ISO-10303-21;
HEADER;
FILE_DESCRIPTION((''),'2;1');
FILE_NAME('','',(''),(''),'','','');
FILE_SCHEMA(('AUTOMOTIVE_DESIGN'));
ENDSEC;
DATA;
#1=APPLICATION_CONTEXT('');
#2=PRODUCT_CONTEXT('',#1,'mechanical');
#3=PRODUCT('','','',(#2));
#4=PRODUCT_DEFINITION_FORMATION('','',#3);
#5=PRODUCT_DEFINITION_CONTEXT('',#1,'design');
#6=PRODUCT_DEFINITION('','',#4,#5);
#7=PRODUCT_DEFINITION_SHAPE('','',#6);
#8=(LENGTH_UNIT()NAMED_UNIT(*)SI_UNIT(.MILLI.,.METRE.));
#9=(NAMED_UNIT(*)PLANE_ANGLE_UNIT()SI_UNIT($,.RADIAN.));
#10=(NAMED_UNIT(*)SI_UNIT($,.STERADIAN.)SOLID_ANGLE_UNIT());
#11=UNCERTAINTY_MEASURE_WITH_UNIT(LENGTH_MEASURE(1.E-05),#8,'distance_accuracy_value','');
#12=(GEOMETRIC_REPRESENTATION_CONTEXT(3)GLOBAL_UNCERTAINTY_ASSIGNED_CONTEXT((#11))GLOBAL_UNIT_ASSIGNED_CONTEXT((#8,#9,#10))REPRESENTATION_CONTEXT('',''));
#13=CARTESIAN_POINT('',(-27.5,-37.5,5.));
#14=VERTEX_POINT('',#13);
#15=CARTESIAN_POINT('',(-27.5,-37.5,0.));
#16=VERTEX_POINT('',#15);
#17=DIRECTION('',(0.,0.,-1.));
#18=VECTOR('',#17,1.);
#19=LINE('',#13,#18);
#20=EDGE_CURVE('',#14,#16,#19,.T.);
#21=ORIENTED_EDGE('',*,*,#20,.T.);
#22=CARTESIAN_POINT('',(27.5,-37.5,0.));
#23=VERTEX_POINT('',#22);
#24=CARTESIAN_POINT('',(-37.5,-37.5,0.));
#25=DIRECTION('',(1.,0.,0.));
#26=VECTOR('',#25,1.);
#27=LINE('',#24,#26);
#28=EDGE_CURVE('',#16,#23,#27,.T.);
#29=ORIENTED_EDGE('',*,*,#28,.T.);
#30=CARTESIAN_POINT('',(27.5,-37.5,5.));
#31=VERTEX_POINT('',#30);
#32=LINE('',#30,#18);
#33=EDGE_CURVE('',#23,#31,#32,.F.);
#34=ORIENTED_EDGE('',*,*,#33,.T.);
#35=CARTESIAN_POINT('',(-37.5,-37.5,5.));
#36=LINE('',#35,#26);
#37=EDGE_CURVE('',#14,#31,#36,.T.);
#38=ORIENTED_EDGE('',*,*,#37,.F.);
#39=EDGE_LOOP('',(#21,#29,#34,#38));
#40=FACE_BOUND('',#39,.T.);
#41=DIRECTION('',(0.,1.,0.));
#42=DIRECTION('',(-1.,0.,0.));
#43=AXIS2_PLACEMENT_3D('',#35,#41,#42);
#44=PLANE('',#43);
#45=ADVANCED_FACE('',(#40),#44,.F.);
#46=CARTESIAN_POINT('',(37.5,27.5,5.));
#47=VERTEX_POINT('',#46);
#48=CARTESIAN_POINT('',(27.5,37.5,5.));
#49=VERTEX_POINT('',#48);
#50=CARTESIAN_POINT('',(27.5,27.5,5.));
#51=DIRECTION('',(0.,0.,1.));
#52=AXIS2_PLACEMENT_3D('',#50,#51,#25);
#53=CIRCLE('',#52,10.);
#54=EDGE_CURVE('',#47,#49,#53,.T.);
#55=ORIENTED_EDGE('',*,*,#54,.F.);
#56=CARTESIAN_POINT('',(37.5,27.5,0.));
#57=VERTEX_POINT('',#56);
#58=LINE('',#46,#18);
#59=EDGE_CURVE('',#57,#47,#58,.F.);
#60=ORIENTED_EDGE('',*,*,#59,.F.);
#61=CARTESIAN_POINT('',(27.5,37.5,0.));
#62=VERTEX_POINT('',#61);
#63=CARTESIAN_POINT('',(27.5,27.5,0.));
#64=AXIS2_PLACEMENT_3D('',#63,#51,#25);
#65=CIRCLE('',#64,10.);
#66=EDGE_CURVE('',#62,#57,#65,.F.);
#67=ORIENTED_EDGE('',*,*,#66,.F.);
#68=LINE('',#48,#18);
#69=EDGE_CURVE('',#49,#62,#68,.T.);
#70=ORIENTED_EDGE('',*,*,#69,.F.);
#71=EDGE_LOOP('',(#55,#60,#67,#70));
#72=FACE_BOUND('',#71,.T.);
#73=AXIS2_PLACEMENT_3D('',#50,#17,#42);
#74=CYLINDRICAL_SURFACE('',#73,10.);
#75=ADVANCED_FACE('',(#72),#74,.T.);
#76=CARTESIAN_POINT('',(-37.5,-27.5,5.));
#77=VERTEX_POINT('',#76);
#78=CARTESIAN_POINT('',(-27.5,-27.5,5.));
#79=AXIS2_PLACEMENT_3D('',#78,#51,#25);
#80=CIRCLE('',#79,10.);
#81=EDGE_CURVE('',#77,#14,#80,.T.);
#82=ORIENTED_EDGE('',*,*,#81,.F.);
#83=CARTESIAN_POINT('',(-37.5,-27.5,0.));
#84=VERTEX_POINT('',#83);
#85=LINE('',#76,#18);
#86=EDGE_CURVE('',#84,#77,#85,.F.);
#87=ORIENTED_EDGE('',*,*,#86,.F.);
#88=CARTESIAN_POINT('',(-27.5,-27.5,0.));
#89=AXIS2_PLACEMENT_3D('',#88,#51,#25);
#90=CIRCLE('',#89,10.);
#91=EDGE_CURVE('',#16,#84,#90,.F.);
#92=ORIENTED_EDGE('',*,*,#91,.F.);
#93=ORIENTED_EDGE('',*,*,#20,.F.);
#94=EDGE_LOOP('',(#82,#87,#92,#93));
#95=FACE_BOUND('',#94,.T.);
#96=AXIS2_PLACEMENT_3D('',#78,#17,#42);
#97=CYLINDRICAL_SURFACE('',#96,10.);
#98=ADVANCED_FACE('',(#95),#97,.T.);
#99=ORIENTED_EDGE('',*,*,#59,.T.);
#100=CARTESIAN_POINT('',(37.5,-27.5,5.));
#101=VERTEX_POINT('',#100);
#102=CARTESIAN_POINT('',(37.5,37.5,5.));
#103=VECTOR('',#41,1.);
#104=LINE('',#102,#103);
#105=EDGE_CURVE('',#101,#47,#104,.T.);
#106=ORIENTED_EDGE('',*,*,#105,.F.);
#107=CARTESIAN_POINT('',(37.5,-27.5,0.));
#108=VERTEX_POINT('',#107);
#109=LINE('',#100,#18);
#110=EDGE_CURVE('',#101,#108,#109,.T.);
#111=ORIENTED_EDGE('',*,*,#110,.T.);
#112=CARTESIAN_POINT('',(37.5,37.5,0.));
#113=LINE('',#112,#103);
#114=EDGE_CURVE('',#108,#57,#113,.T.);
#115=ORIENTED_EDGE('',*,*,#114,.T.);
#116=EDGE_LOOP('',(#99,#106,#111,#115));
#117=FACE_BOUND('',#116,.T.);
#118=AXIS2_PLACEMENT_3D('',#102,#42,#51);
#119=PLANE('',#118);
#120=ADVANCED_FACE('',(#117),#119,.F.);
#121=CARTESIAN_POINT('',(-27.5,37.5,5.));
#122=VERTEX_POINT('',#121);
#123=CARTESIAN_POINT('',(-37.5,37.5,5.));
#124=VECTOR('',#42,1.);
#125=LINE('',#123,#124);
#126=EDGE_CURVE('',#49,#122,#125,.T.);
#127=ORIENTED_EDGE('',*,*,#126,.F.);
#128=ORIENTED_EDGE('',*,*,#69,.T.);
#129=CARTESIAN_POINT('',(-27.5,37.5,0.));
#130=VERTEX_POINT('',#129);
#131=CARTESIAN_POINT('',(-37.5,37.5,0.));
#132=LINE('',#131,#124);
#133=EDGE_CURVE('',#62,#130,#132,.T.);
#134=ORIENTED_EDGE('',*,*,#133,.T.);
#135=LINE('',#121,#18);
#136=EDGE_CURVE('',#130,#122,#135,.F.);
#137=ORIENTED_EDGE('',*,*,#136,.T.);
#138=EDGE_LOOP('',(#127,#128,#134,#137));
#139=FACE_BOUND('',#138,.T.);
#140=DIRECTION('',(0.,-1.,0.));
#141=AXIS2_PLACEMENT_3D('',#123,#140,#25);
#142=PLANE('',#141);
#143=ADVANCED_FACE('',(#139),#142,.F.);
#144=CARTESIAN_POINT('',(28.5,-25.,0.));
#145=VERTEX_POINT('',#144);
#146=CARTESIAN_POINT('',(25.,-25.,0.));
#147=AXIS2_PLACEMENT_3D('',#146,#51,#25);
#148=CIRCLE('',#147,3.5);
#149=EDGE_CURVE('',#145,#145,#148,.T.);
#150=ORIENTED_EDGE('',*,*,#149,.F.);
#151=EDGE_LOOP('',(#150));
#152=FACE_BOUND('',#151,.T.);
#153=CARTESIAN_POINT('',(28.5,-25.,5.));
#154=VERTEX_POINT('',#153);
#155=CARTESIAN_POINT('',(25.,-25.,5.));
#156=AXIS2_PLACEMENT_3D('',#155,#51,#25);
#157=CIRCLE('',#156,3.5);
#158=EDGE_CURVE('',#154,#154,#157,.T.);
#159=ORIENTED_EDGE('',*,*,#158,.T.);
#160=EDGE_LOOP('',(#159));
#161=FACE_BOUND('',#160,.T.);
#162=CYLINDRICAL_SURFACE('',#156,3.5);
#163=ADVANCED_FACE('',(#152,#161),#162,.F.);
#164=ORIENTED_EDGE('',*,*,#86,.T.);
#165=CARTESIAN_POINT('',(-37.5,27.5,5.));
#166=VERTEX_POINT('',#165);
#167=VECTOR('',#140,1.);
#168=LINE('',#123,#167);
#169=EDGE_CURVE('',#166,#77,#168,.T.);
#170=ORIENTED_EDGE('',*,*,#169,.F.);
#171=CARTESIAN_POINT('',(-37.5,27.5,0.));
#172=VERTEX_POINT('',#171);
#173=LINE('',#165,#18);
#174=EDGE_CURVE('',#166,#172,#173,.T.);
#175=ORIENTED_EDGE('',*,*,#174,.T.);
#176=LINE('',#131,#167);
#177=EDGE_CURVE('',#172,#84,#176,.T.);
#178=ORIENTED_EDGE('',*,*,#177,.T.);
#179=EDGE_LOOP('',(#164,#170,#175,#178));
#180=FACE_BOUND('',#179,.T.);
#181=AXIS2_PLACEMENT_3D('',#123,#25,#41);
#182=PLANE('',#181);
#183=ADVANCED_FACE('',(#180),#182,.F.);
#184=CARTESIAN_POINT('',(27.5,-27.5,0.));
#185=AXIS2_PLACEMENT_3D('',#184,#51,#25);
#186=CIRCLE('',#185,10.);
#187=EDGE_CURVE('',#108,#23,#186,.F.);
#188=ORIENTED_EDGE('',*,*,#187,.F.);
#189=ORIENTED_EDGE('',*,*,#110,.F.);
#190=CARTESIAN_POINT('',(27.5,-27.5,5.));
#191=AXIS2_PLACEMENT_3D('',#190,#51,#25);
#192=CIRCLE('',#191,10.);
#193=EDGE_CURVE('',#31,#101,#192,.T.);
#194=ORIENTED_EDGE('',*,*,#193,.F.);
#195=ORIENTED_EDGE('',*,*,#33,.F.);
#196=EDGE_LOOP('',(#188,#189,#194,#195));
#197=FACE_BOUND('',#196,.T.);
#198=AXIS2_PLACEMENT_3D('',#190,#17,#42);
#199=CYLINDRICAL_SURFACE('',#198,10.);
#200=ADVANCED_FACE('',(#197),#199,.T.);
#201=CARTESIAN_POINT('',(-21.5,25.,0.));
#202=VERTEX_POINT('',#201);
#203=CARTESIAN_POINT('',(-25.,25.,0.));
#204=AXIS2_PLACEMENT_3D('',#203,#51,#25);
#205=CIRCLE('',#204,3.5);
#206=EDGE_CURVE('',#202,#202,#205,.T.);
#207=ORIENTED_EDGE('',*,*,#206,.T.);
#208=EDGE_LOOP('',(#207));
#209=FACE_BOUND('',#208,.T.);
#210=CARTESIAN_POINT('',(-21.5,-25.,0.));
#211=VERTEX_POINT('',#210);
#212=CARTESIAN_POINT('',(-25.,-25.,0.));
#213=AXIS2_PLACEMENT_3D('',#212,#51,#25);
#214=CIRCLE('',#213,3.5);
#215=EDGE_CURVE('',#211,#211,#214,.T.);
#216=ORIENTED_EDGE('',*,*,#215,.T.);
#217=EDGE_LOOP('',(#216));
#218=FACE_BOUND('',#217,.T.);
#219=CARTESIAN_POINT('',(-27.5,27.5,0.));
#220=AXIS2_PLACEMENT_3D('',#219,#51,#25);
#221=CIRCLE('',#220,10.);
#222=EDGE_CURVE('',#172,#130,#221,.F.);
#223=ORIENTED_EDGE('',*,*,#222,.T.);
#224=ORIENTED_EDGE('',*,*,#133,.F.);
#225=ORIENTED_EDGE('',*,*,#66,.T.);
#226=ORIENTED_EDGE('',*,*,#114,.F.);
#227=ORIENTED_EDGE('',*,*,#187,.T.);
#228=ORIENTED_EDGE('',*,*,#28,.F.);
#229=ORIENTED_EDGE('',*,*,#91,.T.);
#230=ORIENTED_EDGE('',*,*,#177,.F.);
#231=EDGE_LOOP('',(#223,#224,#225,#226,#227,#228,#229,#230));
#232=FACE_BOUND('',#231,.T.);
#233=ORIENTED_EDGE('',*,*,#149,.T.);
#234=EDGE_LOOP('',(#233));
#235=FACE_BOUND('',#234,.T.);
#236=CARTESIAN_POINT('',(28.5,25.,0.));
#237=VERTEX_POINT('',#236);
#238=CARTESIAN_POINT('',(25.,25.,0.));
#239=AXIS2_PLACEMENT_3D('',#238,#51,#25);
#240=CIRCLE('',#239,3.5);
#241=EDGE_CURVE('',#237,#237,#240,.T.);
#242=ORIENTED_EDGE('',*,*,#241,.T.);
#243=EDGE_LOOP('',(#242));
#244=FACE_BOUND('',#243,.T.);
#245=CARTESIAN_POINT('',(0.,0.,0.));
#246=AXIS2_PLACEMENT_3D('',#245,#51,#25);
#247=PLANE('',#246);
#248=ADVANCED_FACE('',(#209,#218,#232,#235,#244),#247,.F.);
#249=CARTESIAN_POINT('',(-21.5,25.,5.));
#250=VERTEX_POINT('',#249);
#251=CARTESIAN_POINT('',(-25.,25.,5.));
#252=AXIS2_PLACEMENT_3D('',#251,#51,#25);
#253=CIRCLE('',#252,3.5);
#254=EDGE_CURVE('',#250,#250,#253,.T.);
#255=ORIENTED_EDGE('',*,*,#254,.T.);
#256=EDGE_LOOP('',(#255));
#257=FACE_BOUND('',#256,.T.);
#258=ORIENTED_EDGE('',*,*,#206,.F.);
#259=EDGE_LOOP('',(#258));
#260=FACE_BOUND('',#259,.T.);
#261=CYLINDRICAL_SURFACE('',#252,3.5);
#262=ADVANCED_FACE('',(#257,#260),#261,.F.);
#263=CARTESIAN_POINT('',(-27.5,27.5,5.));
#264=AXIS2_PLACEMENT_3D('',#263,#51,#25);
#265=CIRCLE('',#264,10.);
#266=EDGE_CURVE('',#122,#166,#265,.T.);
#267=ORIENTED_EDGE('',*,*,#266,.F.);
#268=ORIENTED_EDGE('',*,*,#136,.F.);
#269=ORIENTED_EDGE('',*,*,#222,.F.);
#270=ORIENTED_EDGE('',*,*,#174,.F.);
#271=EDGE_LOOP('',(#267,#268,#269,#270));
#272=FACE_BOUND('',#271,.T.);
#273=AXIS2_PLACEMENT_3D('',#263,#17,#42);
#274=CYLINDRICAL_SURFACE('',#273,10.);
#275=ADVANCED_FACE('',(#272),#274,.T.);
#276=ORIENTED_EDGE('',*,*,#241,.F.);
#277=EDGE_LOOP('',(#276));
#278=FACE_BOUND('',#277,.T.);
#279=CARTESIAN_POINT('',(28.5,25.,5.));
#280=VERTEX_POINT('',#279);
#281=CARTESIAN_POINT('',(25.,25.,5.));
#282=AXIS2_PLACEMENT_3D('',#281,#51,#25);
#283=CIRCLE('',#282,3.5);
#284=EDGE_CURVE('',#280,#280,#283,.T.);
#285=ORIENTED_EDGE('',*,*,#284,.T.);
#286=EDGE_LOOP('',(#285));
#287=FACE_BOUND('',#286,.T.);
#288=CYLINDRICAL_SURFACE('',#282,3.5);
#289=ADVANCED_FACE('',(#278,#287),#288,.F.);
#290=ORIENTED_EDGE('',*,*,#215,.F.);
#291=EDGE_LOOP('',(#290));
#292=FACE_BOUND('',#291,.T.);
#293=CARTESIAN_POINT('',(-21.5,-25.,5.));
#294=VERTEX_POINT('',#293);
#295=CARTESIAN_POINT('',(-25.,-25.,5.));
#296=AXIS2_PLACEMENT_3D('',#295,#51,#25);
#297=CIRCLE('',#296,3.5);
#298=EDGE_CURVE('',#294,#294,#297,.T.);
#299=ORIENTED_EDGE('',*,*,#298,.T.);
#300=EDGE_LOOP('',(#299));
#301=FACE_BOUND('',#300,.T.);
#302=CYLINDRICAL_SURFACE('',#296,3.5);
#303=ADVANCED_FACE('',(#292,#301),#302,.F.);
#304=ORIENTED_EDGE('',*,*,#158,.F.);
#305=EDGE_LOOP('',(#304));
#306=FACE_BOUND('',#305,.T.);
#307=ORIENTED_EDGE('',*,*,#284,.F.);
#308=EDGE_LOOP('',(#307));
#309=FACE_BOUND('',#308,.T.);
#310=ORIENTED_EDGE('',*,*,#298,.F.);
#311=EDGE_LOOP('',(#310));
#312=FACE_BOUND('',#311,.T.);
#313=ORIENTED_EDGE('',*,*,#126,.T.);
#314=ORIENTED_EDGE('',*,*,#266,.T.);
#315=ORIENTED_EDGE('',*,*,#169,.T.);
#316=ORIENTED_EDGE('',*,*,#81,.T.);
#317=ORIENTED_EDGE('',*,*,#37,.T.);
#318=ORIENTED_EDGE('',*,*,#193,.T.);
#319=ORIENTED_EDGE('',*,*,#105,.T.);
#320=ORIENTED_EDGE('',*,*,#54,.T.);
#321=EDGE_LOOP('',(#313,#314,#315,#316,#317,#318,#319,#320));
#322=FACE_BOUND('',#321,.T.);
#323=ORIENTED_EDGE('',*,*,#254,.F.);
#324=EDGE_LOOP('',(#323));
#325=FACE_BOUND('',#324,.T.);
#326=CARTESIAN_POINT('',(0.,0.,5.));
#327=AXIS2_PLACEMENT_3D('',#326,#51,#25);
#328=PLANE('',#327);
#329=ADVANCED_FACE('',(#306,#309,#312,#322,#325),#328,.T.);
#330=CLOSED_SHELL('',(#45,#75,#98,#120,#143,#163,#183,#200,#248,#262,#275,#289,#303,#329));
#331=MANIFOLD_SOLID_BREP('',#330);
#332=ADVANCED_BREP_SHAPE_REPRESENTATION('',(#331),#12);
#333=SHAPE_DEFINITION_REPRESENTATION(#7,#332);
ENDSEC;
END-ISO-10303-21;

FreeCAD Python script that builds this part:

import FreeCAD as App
import Part
import Sketcher

V = App.Vector
Q = App.Units.Quantity


def edges_at(feature, points):
    """Names of the edges that pass closest to the given points."""
    edges = feature.Shape.Edges
    near = lambda p: min(range(len(edges)), key=lambda i: edges[i].distToShape(Part.Vertex(*p))[0])
    return sorted({f"Edge{near(p) + 1}" for p in points})


def add_polygon(sketch, points):
    """Adds a closed chain of lines whose ends are joined by coincident constraints."""
    first, n = sketch.GeometryCount, len(points)
    for a, b in zip(points, points[1:] + points[:1]):
        sketch.addGeometry(Part.LineSegment(App.Vector(*a, 0), App.Vector(*b, 0)), False)
    for i in range(n):
        sketch.addConstraint(Sketcher.Constraint("Coincident", first + i, 2, first + (i + 1) % n, 1))

doc = App.newDocument("Part")
body = doc.addObject("PartDesign::Body", "Body")

# Sketch on XY plane
sketch1 = body.newObject("Sketcher::SketchObject", "Sketch")
sketch1.AttachmentSupport = (doc.getObject("XY_Plane"), [""])
sketch1.MapMode = "FlatFace"
add_polygon(sketch1, [(-38, 38), (-38, -38), (38, -38), (38, 38)])  # lines 0-3
sketch1.addConstraint([
    Sketcher.Constraint("Vertical", 0),
    Sketcher.Constraint("Horizontal", 1),
    Sketcher.Constraint("Vertical", 2),
    Sketcher.Constraint("Horizontal", 3),
    Sketcher.Constraint("Symmetric", 0, 2, 2, 2, -1, 1),
    Sketcher.Constraint("Equal", 3, 0),
    Sketcher.Constraint("DistanceX", 1, 1, 1, 2, Q("75 mm")),
])
pad1 = body.newObject("PartDesign::Pad", "Pad")
pad1.Profile = sketch1
pad1.Length = 5

# Sketch on XY plane
sketch2 = body.newObject("Sketcher::SketchObject", "Sketch001")
sketch2.AttachmentSupport = (doc.getObject("XY_Plane"), [""])
sketch2.MapMode = "FlatFace"
sketch2.AttachmentOffset = App.Placement(V(0, 0, 5), App.Rotation())
sketch2.addGeometry([
    Part.Circle(V(-25, 25, 0), V(0, 0, 1), 3.5),
    Part.Circle(V(-25, -25, 0), V(0, 0, 1), 3.5),
    Part.Circle(V(25, -25, 0), V(0, 0, 1), 3.5),
    Part.Circle(V(25, 25, 0), V(0, 0, 1), 3.5),
], False)
sketch2.addConstraint([
    Sketcher.Constraint("Equal", 0, 1),
    Sketcher.Constraint("Equal", 1, 2),
    Sketcher.Constraint("Equal", 2, 3),
    Sketcher.Constraint("Symmetric", 0, 3, 2, 3, -1, 1),
    Sketcher.Constraint("Symmetric", 1, 3, 3, 3, -1, 1),
    Sketcher.Constraint("Symmetric", 1, 3, 2, 3, -2),
    Sketcher.Constraint("Diameter", 0, Q("7 mm")),
    Sketcher.Constraint("DistanceX", 0, 3, -1, 1, Q("25 mm")),
    Sketcher.Constraint("DistanceY", -1, 1, 0, 3, Q("25 mm")),
])
doc.recompute()
hole = body.newObject("PartDesign::Hole", "Hole")
hole.Profile = sketch2
hole.ThreadType = "None"
hole.Diameter = 7
hole.DepthType = "ThroughAll"
doc.recompute()

fillet = body.newObject("PartDesign::Fillet", "Fillet")
fillet.Base = (hole, edges_at(hole, [
    (-37.5, 37.5, 2.5),
    (37.5, 37.5, 2.5),
    (37.5, -37.5, 2.5),
    (-37.5, -37.5, 2.5),
]))
fillet.Radius = 10

doc.recompute()
